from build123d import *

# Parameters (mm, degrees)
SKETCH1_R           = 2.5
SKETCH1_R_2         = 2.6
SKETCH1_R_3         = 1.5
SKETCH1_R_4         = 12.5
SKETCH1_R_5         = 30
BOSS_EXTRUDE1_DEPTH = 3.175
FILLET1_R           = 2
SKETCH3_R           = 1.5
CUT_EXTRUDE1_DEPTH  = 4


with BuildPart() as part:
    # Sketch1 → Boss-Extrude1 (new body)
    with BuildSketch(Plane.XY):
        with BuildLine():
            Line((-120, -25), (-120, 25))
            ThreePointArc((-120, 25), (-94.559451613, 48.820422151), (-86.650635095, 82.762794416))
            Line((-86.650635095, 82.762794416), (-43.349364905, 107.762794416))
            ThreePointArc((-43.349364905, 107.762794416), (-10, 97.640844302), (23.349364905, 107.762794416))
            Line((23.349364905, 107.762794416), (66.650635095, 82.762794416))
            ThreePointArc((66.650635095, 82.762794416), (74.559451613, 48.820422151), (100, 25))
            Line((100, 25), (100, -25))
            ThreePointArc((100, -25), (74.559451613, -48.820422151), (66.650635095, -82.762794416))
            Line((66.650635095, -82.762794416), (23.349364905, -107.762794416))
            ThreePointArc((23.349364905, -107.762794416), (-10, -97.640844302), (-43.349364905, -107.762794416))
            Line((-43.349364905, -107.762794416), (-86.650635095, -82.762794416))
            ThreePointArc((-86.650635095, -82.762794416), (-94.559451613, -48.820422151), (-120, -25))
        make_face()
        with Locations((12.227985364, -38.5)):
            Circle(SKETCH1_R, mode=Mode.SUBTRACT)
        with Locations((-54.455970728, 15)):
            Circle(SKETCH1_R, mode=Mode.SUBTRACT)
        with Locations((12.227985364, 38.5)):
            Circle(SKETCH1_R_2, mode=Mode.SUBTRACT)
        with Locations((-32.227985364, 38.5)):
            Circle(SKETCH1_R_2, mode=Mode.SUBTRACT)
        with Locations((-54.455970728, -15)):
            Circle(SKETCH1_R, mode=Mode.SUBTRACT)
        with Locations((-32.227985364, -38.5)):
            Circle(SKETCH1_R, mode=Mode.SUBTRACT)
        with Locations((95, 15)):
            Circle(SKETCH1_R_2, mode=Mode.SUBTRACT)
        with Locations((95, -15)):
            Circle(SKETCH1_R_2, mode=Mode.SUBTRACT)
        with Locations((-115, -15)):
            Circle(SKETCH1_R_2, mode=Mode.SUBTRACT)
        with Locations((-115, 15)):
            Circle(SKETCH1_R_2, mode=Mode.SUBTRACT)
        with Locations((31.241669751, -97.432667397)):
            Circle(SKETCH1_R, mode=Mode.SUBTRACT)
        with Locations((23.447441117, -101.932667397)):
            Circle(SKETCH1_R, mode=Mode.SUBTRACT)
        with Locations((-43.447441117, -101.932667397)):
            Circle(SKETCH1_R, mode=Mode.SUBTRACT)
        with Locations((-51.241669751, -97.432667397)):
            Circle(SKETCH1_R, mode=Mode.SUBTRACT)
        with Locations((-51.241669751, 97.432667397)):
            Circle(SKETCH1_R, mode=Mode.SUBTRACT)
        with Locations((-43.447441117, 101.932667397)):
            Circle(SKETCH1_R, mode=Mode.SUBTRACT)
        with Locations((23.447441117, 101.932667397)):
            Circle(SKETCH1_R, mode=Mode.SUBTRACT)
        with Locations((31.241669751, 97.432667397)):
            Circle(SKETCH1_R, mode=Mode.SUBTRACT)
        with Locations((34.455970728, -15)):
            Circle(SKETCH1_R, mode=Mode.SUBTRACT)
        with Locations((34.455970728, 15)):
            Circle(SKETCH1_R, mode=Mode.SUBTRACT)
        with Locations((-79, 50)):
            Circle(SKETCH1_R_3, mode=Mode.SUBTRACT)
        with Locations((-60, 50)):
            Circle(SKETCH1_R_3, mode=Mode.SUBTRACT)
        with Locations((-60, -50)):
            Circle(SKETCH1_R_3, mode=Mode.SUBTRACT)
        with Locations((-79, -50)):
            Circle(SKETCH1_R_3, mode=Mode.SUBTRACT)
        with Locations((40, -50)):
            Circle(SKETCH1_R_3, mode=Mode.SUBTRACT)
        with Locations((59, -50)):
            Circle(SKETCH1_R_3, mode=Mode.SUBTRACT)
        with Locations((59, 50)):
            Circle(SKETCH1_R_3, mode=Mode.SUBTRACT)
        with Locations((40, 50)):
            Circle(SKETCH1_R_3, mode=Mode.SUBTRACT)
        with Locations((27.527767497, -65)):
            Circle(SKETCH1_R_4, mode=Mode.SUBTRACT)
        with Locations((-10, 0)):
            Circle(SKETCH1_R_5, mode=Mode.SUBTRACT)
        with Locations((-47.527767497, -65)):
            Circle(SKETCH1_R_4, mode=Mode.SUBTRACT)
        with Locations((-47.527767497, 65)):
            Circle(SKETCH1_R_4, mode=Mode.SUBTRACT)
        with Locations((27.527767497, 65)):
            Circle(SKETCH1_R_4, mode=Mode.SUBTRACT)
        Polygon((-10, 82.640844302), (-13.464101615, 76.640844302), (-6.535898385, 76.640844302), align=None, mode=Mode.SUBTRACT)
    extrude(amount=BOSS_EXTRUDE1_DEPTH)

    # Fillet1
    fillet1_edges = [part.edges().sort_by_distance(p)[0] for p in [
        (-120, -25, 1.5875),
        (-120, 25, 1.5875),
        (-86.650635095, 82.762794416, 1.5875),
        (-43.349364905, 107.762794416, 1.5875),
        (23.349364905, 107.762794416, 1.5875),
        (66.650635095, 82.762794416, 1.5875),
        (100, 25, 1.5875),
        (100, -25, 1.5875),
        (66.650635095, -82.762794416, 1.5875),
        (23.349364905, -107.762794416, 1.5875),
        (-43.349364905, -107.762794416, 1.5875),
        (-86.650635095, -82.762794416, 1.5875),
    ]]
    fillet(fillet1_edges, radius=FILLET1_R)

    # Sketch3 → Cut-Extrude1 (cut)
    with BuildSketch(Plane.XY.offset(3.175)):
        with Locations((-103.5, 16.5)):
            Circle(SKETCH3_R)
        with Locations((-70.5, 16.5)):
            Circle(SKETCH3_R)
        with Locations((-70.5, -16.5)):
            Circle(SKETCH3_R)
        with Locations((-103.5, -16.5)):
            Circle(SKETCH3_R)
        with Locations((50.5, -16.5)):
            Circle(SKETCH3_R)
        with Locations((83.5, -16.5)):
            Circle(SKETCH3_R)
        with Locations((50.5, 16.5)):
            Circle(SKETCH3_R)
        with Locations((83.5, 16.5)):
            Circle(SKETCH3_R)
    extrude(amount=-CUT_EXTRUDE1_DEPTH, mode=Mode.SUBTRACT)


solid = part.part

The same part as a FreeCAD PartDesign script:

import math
import FreeCAD as App
import Part
import Sketcher
Q = App.Units.Quantity


def edges_at(feature, points):
    """Names of the edges that pass closest to the given points."""
    edges = feature.Shape.Edges
    near = lambda p: min(range(len(edges)), key=lambda i: edges[i].distToShape(Part.Vertex(*p))[0])
    return sorted({f"Edge{near(p) + 1}" for p in points})


def add_polygon(sketch, points):
    """Adds a closed chain of lines whose ends are joined by coincident constraints."""
    first, n = sketch.GeometryCount, len(points)
    for a, b in zip(points, points[1:] + points[:1]):
        sketch.addGeometry(Part.LineSegment(App.Vector(*a, 0), App.Vector(*b, 0)), False)
    for i in range(n):
        sketch.addConstraint(Sketcher.Constraint("Coincident", first + i, 2, first + (i + 1) % n, 1))

doc = App.newDocument("Part")
body = doc.addObject("PartDesign::Body", "Body")

sketch1 = body.newObject("Sketcher::SketchObject", "Sketch")
sketch1.AttachmentSupport = (doc.getObject("XY_Plane"), [""])
sketch1.MapMode = "FlatFace"
sketch1.addGeometry(Part.LineSegment(App.Vector(-120, 25, 0), App.Vector(-120, -25, 0)), False)
sketch1.addGeometry(Part.ArcOfCircle(Part.Circle(App.Vector(-146.5, -78.8, 0), App.Vector(0, 0, 1), 60), math.radians(-4), math.radians(64)), False)
sketch1.addGeometry(Part.LineSegment(App.Vector(-86.7, -82.8, 0), App.Vector(-43.3, -107.8, 0)), False)
sketch1.addGeometry(Part.ArcOfCircle(Part.Circle(App.Vector(-10, -157.6, 0), App.Vector(0, 0, 1), 60), math.radians(56), math.radians(124)), False)
sketch1.addGeometry(Part.LineSegment(App.Vector(23.3, -107.8, 0), App.Vector(66.7, -82.8, 0)), False)
sketch1.addGeometry(Part.ArcOfCircle(Part.Circle(App.Vector(126.5, -78.8, 0), App.Vector(0, 0, 1), 60), math.radians(116), math.radians(184)), False)
sketch1.addGeometry(Part.LineSegment(App.Vector(100, -25, 0), App.Vector(100, 25, 0)), False)
sketch1.addGeometry(Part.ArcOfCircle(Part.Circle(App.Vector(126.5, 78.8, 0), App.Vector(0, 0, 1), 60), math.radians(176), math.radians(244)), False)
sketch1.addGeometry(Part.LineSegment(App.Vector(66.7, 82.8, 0), App.Vector(23.3, 107.8, 0)), False)
sketch1.addGeometry(Part.ArcOfCircle(Part.Circle(App.Vector(-10, 157.6, 0), App.Vector(0, 0, 1), 60), math.radians(-124), math.radians(-56)), False)
sketch1.addGeometry(Part.LineSegment(App.Vector(-43.3, 107.8, 0), App.Vector(-86.7, 82.8, 0)), False)
sketch1.addGeometry(Part.ArcOfCircle(Part.Circle(App.Vector(-146.5, 78.8, 0), App.Vector(0, 0, 1), 60), math.radians(-64), math.radians(4)), False)
sketch1.addGeometry(Part.Circle(App.Vector(31.2, -97.4, 0), App.Vector(0, 0, 1), 2.5), False)
sketch1.addGeometry(Part.Circle(App.Vector(23.4, -101.9, 0), App.Vector(0, 0, 1), 2.5), False)
sketch1.addGeometry(Part.Circle(App.Vector(27.5, -65, 0), App.Vector(0, 0, 1), 12.5), False)
sketch1.addGeometry(Part.Circle(App.Vector(59, -50, 0), App.Vector(0, 0, 1), 1.5), False)
sketch1.addGeometry(Part.Circle(App.Vector(95, -15, 0), App.Vector(0, 0, 1), 2.6), False)
sketch1.addGeometry(Part.Circle(App.Vector(40, -50, 0), App.Vector(0, 0, 1), 1.5), False)
sketch1.addGeometry(Part.Circle(App.Vector(12.2, -38.5, 0), App.Vector(0, 0, 1), 2.5), False)
sketch1.addGeometry(Part.Circle(App.Vector(34.5, -15, 0), App.Vector(0, 0, 1), 2.5), False)
sketch1.addGeometry(Part.Circle(App.Vector(-43.4, -101.9, 0), App.Vector(0, 0, 1), 2.5), False)
sketch1.addGeometry(Part.Circle(App.Vector(-51.2, -97.4, 0), App.Vector(0, 0, 1), 2.5), False)
sketch1.addGeometry(Part.Circle(App.Vector(-47.5, -65, 0), App.Vector(0, 0, 1), 12.5), False)
sketch1.addGeometry(Part.Circle(App.Vector(-32.2, -38.5, 0), App.Vector(0, 0, 1), 2.5), False)
sketch1.addGeometry(Part.Circle(App.Vector(-60, -50, 0), App.Vector(0, 0, 1), 1.5), False)
sketch1.addGeometry(Part.Circle(App.Vector(-10, 0, 0), App.Vector(0, 0, 1), 30), False)
sketch1.addGeometry(Part.Circle(App.Vector(-54.5, -15, 0), App.Vector(0, 0, 1), 2.5), False)
sketch1.addGeometry(Part.Circle(App.Vector(-79, -50, 0), App.Vector(0, 0, 1), 1.5), False)
sketch1.addGeometry(Part.Circle(App.Vector(-115, -15, 0), App.Vector(0, 0, 1), 2.6), False)
sketch1.addGeometry(Part.Circle(App.Vector(95, 15, 0), App.Vector(0, 0, 1), 2.6), False)
sketch1.addGeometry(Part.Circle(App.Vector(59, 50, 0), App.Vector(0, 0, 1), 1.5), False)
sketch1.addGeometry(Part.Circle(App.Vector(34.5, 15, 0), App.Vector(0, 0, 1), 2.5), False)
sketch1.addGeometry(Part.Circle(App.Vector(40, 50, 0), App.Vector(0, 0, 1), 1.5), False)
sketch1.addGeometry(Part.Circle(App.Vector(12.2, 38.5, 0), App.Vector(0, 0, 1), 2.6), False)
sketch1.addGeometry(Part.Circle(App.Vector(27.5, 65, 0), App.Vector(0, 0, 1), 12.5), False)
sketch1.addGeometry(Part.Circle(App.Vector(31.2, 97.4, 0), App.Vector(0, 0, 1), 2.5), False)
sketch1.addGeometry(Part.Circle(App.Vector(23.4, 101.9, 0), App.Vector(0, 0, 1), 2.5), False)
sketch1.addGeometry(Part.Circle(App.Vector(-54.5, 15, 0), App.Vector(0, 0, 1), 2.5), False)
sketch1.addGeometry(Part.Circle(App.Vector(-32.2, 38.5, 0), App.Vector(0, 0, 1), 2.6), False)
sketch1.addGeometry(Part.Circle(App.Vector(-60, 50, 0), App.Vector(0, 0, 1), 1.5), False)
sketch1.addGeometry(Part.Circle(App.Vector(-115, 15, 0), App.Vector(0, 0, 1), 2.6), False)
sketch1.addGeometry(Part.Circle(App.Vector(-79, 50, 0), App.Vector(0, 0, 1), 1.5), False)
sketch1.addGeometry(Part.Circle(App.Vector(-47.5, 65, 0), App.Vector(0, 0, 1), 12.5), False)
add_polygon(sketch1, [(-10, 82.6), (-6.5, 76.6), (-13.5, 76.6)])
sketch1.addGeometry(Part.Circle(App.Vector(-43.4, 101.9, 0), App.Vector(0, 0, 1), 2.5), False)
sketch1.addGeometry(Part.Circle(App.Vector(-51.2, 97.4, 0), App.Vector(0, 0, 1), 2.5), False)
sketch1.addConstraint([
    Sketcher.Constraint("Coincident", 0, 2, 1, 2),
    Sketcher.Constraint("Coincident", 1, 1, 2, 1),
    Sketcher.Constraint("Coincident", 2, 2, 3, 2),
    Sketcher.Constraint("Coincident", 3, 1, 4, 1),
    Sketcher.Constraint("Coincident", 4, 2, 5, 2),
    Sketcher.Constraint("Coincident", 5, 1, 6, 1),
    Sketcher.Constraint("Coincident", 6, 2, 7, 2),
    Sketcher.Constraint("Coincident", 7, 1, 8, 1),
    Sketcher.Constraint("Coincident", 8, 2, 9, 2),
    Sketcher.Constraint("Coincident", 9, 1, 10, 1),
    Sketcher.Constraint("Coincident", 10, 2, 11, 2),
    Sketcher.Constraint("Coincident", 11, 1, 0, 1),
    Sketcher.Constraint("Vertical", 0),
    Sketcher.Constraint("Vertical", 6),
    Sketcher.Constraint("Horizontal", 44),
    Sketcher.Constraint("Equal", 1, 3),
    Sketcher.Constraint("Equal", 3, 5),
    Sketcher.Constraint("Equal", 5, 7),
    Sketcher.Constraint("Equal", 7, 9),
    Sketcher.Constraint("Equal", 9, 11),
    Sketcher.Constraint("Equal", 12, 13),
    Sketcher.Constraint("Equal", 15, 17),
    Sketcher.Constraint("Equal", 13, 18),
    Sketcher.Constraint("Equal", 18, 19),
    Sketcher.Constraint("Equal", 19, 20),
    Sketcher.Constraint("Equal", 20, 21),
    Sketcher.Constraint("Equal", 14, 22),
    Sketcher.Constraint("Equal", 21, 23),
    Sketcher.Constraint("Equal", 17, 24),
    Sketcher.Constraint("Equal", 23, 26),
    Sketcher.Constraint("Equal", 24, 27),
    Sketcher.Constraint("Equal", 16, 28),
    Sketcher.Constraint("Equal", 28, 29),
    Sketcher.Constraint("Equal", 27, 30),
    Sketcher.Constraint("Equal", 26, 31),
    Sketcher.Constraint("Equal", 30, 32),
    Sketcher.Constraint("Equal", 29, 33),
    Sketcher.Constraint("Equal", 22, 34),
    Sketcher.Constraint("Equal", 31, 35),
    Sketcher.Constraint("Equal", 35, 36),
    Sketcher.Constraint("Equal", 36, 37),
    Sketcher.Constraint("Equal", 33, 38),
    Sketcher.Constraint("Equal", 32, 39),
    Sketcher.Constraint("Equal", 38, 40),
    Sketcher.Constraint("Equal", 39, 41),
    Sketcher.Constraint("Equal", 34, 42),
    Sketcher.Constraint("Equal", 37, 46),
    Sketcher.Constraint("Equal", 46, 47),
    Sketcher.Constraint("Symmetric", 5, 3, 7, 3, -1),
    Sketcher.Constraint("Symmetric", 3, 3, 9, 3, -1),
    Sketcher.Constraint("Symmetric", 1, 3, 11, 3, -1),
    Sketcher.Constraint("Symmetric", 16, 3, 29, 3, -1),
    Sketcher.Constraint("Symmetric", 15, 3, 30, 3, -1),
    Sketcher.Constraint("Symmetric", 19, 3, 31, 3, -1),
    Sketcher.Constraint("Symmetric", 17, 3, 32, 3, -1),
    Sketcher.Constraint("Symmetric", 18, 3, 33, 3, -1),
    Sketcher.Constraint("Symmetric", 14, 3, 34, 3, -1),
    Sketcher.Constraint("Symmetric", 12, 3, 35, 3, -1),
    Sketcher.Constraint("Symmetric", 13, 3, 36, 3, -1),
    Sketcher.Constraint("Symmetric", 26, 3, 37, 3, -1),
    Sketcher.Constraint("Symmetric", 23, 3, 38, 3, -1),
    Sketcher.Constraint("Symmetric", 24, 3, 39, 3, -1),
    Sketcher.Constraint("Symmetric", 28, 3, 40, 3, -1),
    Sketcher.Constraint("Symmetric", 27, 3, 41, 3, -1),
    Sketcher.Constraint("Symmetric", 22, 3, 42, 3, -1),
    Sketcher.Constraint("Symmetric", 20, 3, 46, 3, -1),
    Sketcher.Constraint("Symmetric", 21, 3, 47, 3, -1),
    Sketcher.Constraint("PointOnObject", 25, 3, -1),
    Sketcher.Constraint("Parallel", 2, 8),
    Sketcher.Constraint("Parallel", 4, 10),
    Sketcher.Constraint("Perpendicular", 10, 43),
    Sketcher.Constraint("Perpendicular", 8, 45),
    Sketcher.Constraint("Horizontal", 1, 3, 5, 3),
    Sketcher.Constraint("Horizontal", 15, 3, 17, 3),
    Sketcher.Constraint("Horizontal", 16, 3, 19, 3),
    Sketcher.Constraint("Horizontal", 13, 3, 20, 3),
    Sketcher.Constraint("Horizontal", 12, 3, 21, 3),
    Sketcher.Constraint("Horizontal", 14, 3, 22, 3),
    Sketcher.Constraint("Horizontal", 18, 3, 23, 3),
    Sketcher.Constraint("Horizontal", 17, 3, 24, 3),
    Sketcher.Constraint("Horizontal", 19, 3, 26, 3),
    Sketcher.Constraint("Horizontal", 24, 3, 27, 3),
    Sketcher.Constraint("Horizontal", 26, 3, 28, 3),
    Sketcher.Constraint("Horizontal", 2, 2, 3, 1),
    Sketcher.Constraint("Horizontal", 1, 1, 4, 2),
    Sketcher.Constraint("Horizontal", 0, 2, 5, 1),
    Sketcher.Constraint("Horizontal", 8, 2, 9, 1),
    Sketcher.Constraint("Horizontal", 7, 1, 10, 2),
    Sketcher.Constraint("Vertical", 9, 3, 25, 3),
    Sketcher.Constraint("Vertical", 4, 2, 7, 1),
    Sketcher.Constraint("Vertical", 25, 3, 45, 2),
    Sketcher.Constraint("Diameter", 12, Q("5 mm")),
    Sketcher.Constraint("Diameter", 14, Q("25 mm")),
    Sketcher.Constraint("Diameter", 15, Q("3 mm")),
    Sketcher.Constraint("Diameter", 25, Q("60 mm")),
    Sketcher.Constraint("Radius", 1, Q("60 mm")),
    Sketcher.Constraint("Diameter", 16, Q("5.2 mm")),
    Sketcher.Constraint("DistanceY", 0, 2, 0, 1, Q("50 mm")),
    Sketcher.Constraint("Angle", 2, Q("-30 deg")),
    Sketcher.Constraint("Distance", 2, Q("50 mm")),
    Sketcher.Constraint("DistanceX", 3, 3, -1, 1, Q("10 mm")),
    Sketcher.Constraint("DistanceY", 14, 3, -1, 1, Q("65 mm")),
    Sketcher.Constraint("DistanceX", -1, 1, 15, 3, Q("59 mm")),
    Sketcher.Constraint("DistanceY", 15, 3, -1, 1, Q("50 mm")),
    Sketcher.Constraint("DistanceX", -1, 1, 16, 3, Q("95 mm")),
    Sketcher.Constraint("DistanceY", 16, 3, -1, 1, Q("15 mm")),
    Sketcher.Constraint("DistanceX", -1, 1, 17, 3, Q("40 mm")),
    Sketcher.Constraint("DistanceX", 24, 3, -1, 1, Q("60 mm")),
    Sketcher.Constraint("DistanceX", 27, 3, -1, 1, Q("79 mm")),
    Sketcher.Constraint("DistanceX", 28, 3, -1, 1, Q("115 mm")),
    Sketcher.Constraint("DistanceX", 0, 2, -1, 1, Q("120 mm")),
    Sketcher.Constraint("DistanceY", 43, 2, 45, 2, Q("6 mm")),
    Sketcher.Constraint("DistanceY", 18, 3, -1, 1, Q("38.5 mm")),
    Sketcher.Constraint("DistanceY", 13, 3, 12, 3, Q("4.5 mm")),
    Sketcher.Constraint("DistanceX", -1, 1, 12, 3, Q("31.24167 mm")),
    Sketcher.Constraint("DistanceX", -1, 1, 13, 3, Q("23.447441 mm")),
    Sketcher.Constraint("DistanceX", -1, 1, 19, 3, Q("34.455971 mm")),
    Sketcher.Constraint("DistanceX", 20, 3, -1, 1, Q("43.447441 mm")),
    Sketcher.Constraint("DistanceX", 21, 3, -1, 1, Q("51.24167 mm")),
    Sketcher.Constraint("DistanceX", 26, 3, -1, 1, Q("54.455971 mm")),
    Sketcher.Constraint("DistanceX", 1, 3, 5, 3, Q("273.041952 mm")),
    Sketcher.Constraint("DistanceY", 3, 3, 9, 3, Q("315.281689 mm")),
    Sketcher.Constraint("DistanceY", 12, 3, 7, 3, Q("176.25309 mm")),
    Sketcher.Constraint("DistanceX", 14, 3, 5, 3, Q("98.993208 mm")),
    Sketcher.Constraint("DistanceX", 22, 3, 13, 3, Q("70.975209 mm")),
    Sketcher.Constraint("DistanceX", 23, 3, 18, 3, Q("44.455971 mm")),
    Sketcher.Constraint("DistanceX", -1, 1, 18, 3, Q("12.227985 mm")),
    Sketcher.Constraint("DistanceY", -1, 1, 43, 2, Q("76.640844 mm")),
])
pad1 = body.newObject("PartDesign::Pad", "Pad")
pad1.Profile = sketch1
pad1.Length = 3.175
doc.recompute()

fillet = body.newObject("PartDesign::Fillet", "Fillet")
fillet.Base = (pad1, edges_at(pad1, [
    (-120, -25, 1.587),
    (-120, 25, 1.587),
    (-86.651, 82.763, 1.587),
    (-43.349, 107.763, 1.587),
    (23.349, 107.763, 1.587),
    (66.651, 82.763, 1.587),
    (100, 25, 1.587),
    (100, -25, 1.587),
    (66.651, -82.763, 1.587),
    (23.349, -107.763, 1.587),
    (-43.349, -107.763, 1.587),
    (-86.651, -82.763, 1.587),
]))
fillet.Radius = 2

sketch2 = body.newObject("Sketcher::SketchObject", "Sketch001")
sketch2.AttachmentSupport = (doc.getObject("XY_Plane"), [""])
sketch2.MapMode = "FlatFace"
sketch2.AttachmentOffset = App.Placement(App.Vector(0, 0, 3.175), App.Rotation())
sketch2.addGeometry([
    Part.Circle(App.Vector(-103.5, 16.5, 0), App.Vector(0, 0, 1), 1.5),
    Part.Circle(App.Vector(-70.5, 16.5, 0), App.Vector(0, 0, 1), 1.5),
    Part.Circle(App.Vector(-70.5, -16.5, 0), App.Vector(0, 0, 1), 1.5),
    Part.Circle(App.Vector(-103.5, -16.5, 0), App.Vector(0, 0, 1), 1.5),
    Part.Circle(App.Vector(50.5, -16.5, 0), App.Vector(0, 0, 1), 1.5),
    Part.Circle(App.Vector(83.5, -16.5, 0), App.Vector(0, 0, 1), 1.5),
    Part.Circle(App.Vector(50.5, 16.5, 0), App.Vector(0, 0, 1), 1.5),
    Part.Circle(App.Vector(83.5, 16.5, 0), App.Vector(0, 0, 1), 1.5),
], False)
sketch2.addConstraint([
    Sketcher.Constraint("Equal", 0, 1),
    Sketcher.Constraint("Equal", 1, 2),
    Sketcher.Constraint("Equal", 2, 3),
    Sketcher.Constraint("Equal", 3, 4),
    Sketcher.Constraint("Equal", 4, 5),
    Sketcher.Constraint("Equal", 5, 6),
    Sketcher.Constraint("Equal", 6, 7),
    Sketcher.Constraint("Symmetric", 1, 3, 2, 3, -1),
    Sketcher.Constraint("Symmetric", 0, 3, 3, 3, -1),
    Sketcher.Constraint("Symmetric", 4, 3, 6, 3, -1),
    Sketcher.Constraint("Symmetric", 5, 3, 7, 3, -1),
    Sketcher.Constraint("Horizontal", 0, 3, 1, 3),
    Sketcher.Constraint("Horizontal", 3, 3, 4, 3),
    Sketcher.Constraint("Horizontal", 4, 3, 5, 3),
    Sketcher.Constraint("Diameter", 0, Q("3 mm")),
    Sketcher.Constraint("DistanceX", 0, 3, 1, 3, Q("33 mm")),
    Sketcher.Constraint("DistanceY", 2, 3, 1, 3, Q("33 mm")),
    Sketcher.Constraint("DistanceX", 2, 3, 4, 3, Q("121 mm")),
    Sketcher.Constraint("DistanceX", 4, 3, 5, 3, Q("33 mm")),
    Sketcher.Constraint("DistanceX", 0, 3, -1, 1, Q("103.5 mm")),
])
pocket1 = body.newObject("PartDesign::Pocket", "Pocket")
pocket1.Profile = sketch2
pocket1.Length = 4

doc.recompute()
